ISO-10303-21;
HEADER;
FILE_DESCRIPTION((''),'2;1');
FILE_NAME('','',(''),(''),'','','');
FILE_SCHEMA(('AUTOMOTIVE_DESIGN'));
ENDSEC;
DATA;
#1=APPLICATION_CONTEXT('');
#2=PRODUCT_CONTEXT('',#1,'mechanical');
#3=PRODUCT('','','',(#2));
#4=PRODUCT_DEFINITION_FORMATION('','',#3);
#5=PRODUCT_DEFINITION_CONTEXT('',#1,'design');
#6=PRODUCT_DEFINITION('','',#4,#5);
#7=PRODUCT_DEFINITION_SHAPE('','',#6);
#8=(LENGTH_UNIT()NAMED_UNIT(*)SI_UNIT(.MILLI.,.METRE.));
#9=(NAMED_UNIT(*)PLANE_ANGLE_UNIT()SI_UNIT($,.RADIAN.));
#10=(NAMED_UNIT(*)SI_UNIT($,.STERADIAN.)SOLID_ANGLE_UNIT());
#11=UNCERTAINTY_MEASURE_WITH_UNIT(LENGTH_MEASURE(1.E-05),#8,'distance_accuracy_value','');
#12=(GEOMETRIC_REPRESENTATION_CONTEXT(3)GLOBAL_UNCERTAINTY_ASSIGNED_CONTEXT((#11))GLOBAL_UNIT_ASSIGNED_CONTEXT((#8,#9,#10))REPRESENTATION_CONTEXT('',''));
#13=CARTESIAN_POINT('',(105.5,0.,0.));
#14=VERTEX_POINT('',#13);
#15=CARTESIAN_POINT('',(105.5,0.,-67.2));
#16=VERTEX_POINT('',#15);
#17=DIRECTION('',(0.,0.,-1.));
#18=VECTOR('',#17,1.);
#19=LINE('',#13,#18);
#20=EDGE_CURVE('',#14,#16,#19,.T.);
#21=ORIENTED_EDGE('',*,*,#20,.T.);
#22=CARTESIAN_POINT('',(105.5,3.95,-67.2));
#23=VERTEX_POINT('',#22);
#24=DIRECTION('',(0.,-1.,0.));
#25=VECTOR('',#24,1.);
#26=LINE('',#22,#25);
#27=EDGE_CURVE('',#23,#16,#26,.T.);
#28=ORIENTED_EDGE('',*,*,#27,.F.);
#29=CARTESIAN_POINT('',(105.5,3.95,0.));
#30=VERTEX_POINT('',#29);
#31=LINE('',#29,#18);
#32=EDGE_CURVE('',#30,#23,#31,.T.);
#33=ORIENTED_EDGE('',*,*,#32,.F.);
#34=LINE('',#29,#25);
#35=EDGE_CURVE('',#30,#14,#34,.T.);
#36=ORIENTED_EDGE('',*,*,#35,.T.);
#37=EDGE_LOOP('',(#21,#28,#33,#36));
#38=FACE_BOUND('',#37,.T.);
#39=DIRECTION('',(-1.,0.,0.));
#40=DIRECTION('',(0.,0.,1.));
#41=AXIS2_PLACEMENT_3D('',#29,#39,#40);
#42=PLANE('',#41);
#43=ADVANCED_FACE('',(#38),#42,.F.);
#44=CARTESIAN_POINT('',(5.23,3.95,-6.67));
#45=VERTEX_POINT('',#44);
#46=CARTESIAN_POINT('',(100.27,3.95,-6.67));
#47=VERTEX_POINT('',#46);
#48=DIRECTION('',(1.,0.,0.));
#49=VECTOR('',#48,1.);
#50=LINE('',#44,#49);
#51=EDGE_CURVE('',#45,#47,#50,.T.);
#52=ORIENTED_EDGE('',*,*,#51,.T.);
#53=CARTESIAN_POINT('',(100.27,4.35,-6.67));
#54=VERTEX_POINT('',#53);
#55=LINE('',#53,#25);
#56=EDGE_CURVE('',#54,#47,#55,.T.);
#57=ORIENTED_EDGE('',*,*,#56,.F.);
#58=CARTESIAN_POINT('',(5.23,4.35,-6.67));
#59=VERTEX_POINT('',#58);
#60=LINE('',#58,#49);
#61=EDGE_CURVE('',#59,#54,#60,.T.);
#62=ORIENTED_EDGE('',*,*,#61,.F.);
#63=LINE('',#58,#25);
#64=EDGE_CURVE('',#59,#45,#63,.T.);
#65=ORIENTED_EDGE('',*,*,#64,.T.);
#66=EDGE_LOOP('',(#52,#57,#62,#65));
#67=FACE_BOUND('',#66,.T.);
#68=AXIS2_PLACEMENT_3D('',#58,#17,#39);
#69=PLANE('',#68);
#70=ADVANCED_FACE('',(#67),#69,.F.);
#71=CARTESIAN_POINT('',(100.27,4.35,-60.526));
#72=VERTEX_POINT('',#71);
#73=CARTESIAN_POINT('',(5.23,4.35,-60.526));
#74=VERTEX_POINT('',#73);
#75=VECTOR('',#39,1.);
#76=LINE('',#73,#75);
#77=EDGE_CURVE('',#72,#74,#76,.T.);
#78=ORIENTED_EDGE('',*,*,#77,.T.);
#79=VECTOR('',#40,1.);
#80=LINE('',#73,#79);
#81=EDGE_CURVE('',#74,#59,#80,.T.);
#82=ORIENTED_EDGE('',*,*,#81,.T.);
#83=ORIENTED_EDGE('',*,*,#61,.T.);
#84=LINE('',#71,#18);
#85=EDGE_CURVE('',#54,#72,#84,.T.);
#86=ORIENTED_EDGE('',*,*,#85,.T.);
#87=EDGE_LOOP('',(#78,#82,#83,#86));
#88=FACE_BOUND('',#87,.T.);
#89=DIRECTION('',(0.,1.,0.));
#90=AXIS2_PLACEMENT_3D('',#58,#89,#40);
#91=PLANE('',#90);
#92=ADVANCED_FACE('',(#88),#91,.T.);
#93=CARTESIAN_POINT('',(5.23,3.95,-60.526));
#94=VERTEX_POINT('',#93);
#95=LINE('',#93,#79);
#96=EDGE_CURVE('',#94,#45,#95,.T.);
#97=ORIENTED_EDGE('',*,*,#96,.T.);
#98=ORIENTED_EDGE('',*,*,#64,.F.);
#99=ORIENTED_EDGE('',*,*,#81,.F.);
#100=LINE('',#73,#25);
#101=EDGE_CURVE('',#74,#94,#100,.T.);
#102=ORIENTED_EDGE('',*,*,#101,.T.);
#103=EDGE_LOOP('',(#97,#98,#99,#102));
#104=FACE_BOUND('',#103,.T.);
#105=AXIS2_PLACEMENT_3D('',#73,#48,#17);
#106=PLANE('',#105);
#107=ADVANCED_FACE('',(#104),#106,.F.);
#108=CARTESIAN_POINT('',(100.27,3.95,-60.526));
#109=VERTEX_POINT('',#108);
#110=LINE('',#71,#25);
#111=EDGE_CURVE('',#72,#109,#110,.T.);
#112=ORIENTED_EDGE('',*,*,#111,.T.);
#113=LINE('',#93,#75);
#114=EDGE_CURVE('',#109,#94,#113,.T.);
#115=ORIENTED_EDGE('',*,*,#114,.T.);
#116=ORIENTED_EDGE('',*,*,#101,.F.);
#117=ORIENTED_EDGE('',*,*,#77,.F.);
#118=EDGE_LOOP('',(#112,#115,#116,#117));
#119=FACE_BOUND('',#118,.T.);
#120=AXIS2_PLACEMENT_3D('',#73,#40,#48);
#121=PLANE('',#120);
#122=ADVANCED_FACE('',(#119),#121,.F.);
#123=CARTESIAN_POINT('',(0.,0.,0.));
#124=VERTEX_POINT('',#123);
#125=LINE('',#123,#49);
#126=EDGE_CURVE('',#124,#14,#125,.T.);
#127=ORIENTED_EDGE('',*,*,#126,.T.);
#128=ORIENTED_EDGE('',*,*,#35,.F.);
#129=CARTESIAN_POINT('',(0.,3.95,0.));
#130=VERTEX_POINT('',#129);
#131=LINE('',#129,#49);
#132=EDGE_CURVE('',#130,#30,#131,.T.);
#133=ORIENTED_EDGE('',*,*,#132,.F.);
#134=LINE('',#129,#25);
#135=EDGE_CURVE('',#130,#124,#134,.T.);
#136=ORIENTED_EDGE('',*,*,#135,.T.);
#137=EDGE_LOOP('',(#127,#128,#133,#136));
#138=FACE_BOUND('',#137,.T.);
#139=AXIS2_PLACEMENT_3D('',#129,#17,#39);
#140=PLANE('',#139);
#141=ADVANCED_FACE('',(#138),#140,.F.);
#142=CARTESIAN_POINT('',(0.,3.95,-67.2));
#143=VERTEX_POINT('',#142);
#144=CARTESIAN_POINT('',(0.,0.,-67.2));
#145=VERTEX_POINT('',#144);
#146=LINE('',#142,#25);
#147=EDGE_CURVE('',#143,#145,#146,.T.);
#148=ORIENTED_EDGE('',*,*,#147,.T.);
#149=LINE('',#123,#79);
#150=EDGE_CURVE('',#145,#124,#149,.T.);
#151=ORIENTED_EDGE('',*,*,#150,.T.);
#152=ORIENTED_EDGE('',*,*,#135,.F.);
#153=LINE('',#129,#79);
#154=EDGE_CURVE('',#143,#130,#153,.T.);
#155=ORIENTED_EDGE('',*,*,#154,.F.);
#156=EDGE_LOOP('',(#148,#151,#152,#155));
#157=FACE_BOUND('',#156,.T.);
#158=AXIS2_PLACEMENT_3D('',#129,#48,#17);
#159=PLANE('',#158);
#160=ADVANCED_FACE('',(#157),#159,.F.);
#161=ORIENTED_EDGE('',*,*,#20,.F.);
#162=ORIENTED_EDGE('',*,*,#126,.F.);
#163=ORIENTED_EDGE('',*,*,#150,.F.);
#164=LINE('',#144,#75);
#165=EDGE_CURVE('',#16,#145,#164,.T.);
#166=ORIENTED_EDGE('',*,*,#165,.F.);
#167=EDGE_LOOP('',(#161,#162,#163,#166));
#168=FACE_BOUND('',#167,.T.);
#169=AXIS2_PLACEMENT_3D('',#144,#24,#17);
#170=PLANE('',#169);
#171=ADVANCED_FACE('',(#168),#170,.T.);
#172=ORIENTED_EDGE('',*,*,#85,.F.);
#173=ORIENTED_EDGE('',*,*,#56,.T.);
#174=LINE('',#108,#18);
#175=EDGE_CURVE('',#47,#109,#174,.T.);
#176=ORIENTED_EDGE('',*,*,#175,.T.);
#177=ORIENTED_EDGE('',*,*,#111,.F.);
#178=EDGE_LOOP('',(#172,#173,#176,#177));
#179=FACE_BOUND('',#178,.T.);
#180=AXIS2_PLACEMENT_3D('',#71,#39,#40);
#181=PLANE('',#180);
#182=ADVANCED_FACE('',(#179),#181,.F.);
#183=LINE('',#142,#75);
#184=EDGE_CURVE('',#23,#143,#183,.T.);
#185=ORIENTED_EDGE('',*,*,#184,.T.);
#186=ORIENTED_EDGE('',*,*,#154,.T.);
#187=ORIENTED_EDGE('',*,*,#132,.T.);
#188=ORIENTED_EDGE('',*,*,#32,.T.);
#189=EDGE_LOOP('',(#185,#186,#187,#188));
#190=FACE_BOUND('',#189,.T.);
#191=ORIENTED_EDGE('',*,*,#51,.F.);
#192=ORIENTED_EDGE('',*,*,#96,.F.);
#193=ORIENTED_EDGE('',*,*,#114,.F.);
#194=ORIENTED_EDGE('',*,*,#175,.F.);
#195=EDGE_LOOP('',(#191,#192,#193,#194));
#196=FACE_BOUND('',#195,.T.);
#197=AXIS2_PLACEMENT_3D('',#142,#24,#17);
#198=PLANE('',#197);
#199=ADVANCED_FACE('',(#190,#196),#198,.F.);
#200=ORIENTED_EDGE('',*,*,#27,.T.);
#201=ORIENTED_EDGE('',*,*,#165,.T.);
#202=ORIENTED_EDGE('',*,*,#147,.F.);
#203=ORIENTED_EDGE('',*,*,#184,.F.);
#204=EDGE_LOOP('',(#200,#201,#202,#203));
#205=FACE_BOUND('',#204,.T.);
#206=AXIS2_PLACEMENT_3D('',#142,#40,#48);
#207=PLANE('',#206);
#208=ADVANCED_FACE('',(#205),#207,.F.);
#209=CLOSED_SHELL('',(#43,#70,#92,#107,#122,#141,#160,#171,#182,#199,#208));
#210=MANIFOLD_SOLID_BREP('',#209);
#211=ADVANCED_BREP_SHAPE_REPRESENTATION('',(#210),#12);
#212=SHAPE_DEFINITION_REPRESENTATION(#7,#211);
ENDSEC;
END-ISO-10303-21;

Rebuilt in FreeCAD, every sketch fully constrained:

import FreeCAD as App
import Part
import Sketcher

V = App.Vector

doc = App.newDocument("Part")
body = doc.addObject("PartDesign::Body", "Body")

# Sketch on XZ plane
sketch1 = body.newObject("Sketcher::SketchObject", "Sketch")
sketch1.AttachmentSupport = (doc.getObject("XZ_Plane"), [""])
sketch1.MapMode = "FlatFace"
sketch1.addGeometry([
    Part.LineSegment(V(0, -67.2, 0), V(0, 0, 0)),
    Part.LineSegment(V(0, 0, 0), V(105.5, 0, 0)),
    Part.LineSegment(V(105.5, 0, 0), V(105.5, -67.2, 0)),
    Part.LineSegment(V(105.5, -67.2, 0), V(0, -67.2, 0)),
], False)
sketch1.addConstraint([
    Sketcher.Constraint("Coincident", 0, 2, 1, 1),
    Sketcher.Constraint("Coincident", 1, 2, 2, 1),
    Sketcher.Constraint("Coincident", 2, 2, 3, 1),
    Sketcher.Constraint("Coincident", 3, 2, 0, 1),
    Sketcher.Constraint("Vertical", 0),
    Sketcher.Constraint("Horizontal", 1),
    Sketcher.Constraint("Vertical", 2),
    Sketcher.Constraint("Horizontal", 3),
    Sketcher.Constraint("Coincident", 0, 2, -1, 1),
    Sketcher.Constraint("DistanceX", 1, 1, 1, 2, 105.5),
    Sketcher.Constraint("DistanceY", 0, 1, 0, 2, 67.2),
])
pad1 = body.newObject("PartDesign::Pad", "Pad")
pad1.Profile = sketch1
pad1.Length = 3.95
pad1.Reversed = True

# Sketch on XZ plane
sketch2 = body.newObject("Sketcher::SketchObject", "Sketch001")
sketch2.AttachmentSupport = (doc.getObject("XZ_Plane"), [""])
sketch2.MapMode = "FlatFace"
sketch2.AttachmentOffset = App.Placement(V(0, 0, -3.95), App.Rotation())
sketch2.addGeometry([
    Part.LineSegment(V(5.23, -60.526, 0), V(5.23, -6.67, 0)),
    Part.LineSegment(V(5.23, -6.67, 0), V(100.27, -6.67, 0)),
    Part.LineSegment(V(100.27, -6.67, 0), V(100.27, -60.526, 0)),
    Part.LineSegment(V(100.27, -60.526, 0), V(5.23, -60.526, 0)),
], False)
sketch2.addConstraint([
    Sketcher.Constraint("Coincident", 0, 2, 1, 1),
    Sketcher.Constraint("Coincident", 1, 2, 2, 1),
    Sketcher.Constraint("Coincident", 2, 2, 3, 1),
    Sketcher.Constraint("Coincident", 3, 2, 0, 1),
    Sketcher.Constraint("Vertical", 0),
    Sketcher.Constraint("Horizontal", 1),
    Sketcher.Constraint("Vertical", 2),
    Sketcher.Constraint("Horizontal", 3),
    Sketcher.Constraint("DistanceX", 1, 1, 1, 2, 95.04),
    Sketcher.Constraint("DistanceY", 0, 1, 0, 2, 53.856),
    Sketcher.Constraint("DistanceX", -1, 1, 0, 2, 5.23),
    Sketcher.Constraint("DistanceY", 0, 2, -1, 1, 6.67),
])
pad2 = body.newObject("PartDesign::Pad", "Pad001")
pad2.Profile = sketch2
pad2.Length = 0.4
pad2.Reversed = True

doc.recompute()
